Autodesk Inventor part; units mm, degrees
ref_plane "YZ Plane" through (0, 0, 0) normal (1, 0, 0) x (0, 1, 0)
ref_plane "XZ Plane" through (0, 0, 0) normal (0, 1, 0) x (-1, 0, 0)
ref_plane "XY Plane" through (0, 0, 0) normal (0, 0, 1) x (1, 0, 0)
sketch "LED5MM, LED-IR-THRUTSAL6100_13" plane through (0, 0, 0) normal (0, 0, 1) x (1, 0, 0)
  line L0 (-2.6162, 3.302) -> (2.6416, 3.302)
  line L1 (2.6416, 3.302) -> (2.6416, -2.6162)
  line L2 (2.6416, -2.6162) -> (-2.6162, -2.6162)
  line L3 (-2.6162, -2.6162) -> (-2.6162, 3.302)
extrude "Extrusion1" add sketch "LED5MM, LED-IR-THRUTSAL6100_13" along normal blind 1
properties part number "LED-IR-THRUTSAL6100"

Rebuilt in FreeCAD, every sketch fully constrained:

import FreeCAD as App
import Part
import Sketcher
from FreeCAD import Vector
Q = App.Units.Quantity


def add_polygon(sketch, points):
    """Adds a closed chain of lines whose ends are joined by coincident constraints."""
    first, n = sketch.GeometryCount, len(points)
    for a, b in zip(points, points[1:] + points[:1]):
        sketch.addGeometry(Part.LineSegment(App.Vector(*a, 0), App.Vector(*b, 0)), False)
    for i in range(n):
        sketch.addConstraint(Sketcher.Constraint("Coincident", first + i, 2, first + (i + 1) % n, 1))

doc = App.newDocument("Part")
body = doc.addObject("PartDesign::Body", "Body")

# Sketch on XY plane
sketch1 = body.newObject("Sketcher::SketchObject", "Sketch")
sketch1.AttachmentSupport = (doc.getObject("XY_Plane"), [""])
sketch1.MapMode = "FlatFace"
add_polygon(sketch1, [(3, 3), (-3, 3), (-3, -3), (3, -3)])  # lines 0-3
sketch1.addConstraint([
    Sketcher.Constraint("Horizontal", 0),
    Sketcher.Constraint("Vertical", 1),
    Sketcher.Constraint("Horizontal", 2),
    Sketcher.Constraint("Vertical", 3),
    Sketcher.Constraint("DistanceX", 0, 2, 0, 1, Q("0.207 in")),
    Sketcher.Constraint("DistanceY", 1, 2, 1, 1, Q("0.233 in")),
    Sketcher.Constraint("DistanceY", -1, 1, 0, 2, Q("0.13 in")),
    Sketcher.Constraint("DistanceX", 0, 2, -1, 1, Q("0.103 in")),
])
pad1 = body.newObject("PartDesign::Pad", "Pad")
pad1.Profile = sketch1
pad1.Length = 1

doc.recompute()
